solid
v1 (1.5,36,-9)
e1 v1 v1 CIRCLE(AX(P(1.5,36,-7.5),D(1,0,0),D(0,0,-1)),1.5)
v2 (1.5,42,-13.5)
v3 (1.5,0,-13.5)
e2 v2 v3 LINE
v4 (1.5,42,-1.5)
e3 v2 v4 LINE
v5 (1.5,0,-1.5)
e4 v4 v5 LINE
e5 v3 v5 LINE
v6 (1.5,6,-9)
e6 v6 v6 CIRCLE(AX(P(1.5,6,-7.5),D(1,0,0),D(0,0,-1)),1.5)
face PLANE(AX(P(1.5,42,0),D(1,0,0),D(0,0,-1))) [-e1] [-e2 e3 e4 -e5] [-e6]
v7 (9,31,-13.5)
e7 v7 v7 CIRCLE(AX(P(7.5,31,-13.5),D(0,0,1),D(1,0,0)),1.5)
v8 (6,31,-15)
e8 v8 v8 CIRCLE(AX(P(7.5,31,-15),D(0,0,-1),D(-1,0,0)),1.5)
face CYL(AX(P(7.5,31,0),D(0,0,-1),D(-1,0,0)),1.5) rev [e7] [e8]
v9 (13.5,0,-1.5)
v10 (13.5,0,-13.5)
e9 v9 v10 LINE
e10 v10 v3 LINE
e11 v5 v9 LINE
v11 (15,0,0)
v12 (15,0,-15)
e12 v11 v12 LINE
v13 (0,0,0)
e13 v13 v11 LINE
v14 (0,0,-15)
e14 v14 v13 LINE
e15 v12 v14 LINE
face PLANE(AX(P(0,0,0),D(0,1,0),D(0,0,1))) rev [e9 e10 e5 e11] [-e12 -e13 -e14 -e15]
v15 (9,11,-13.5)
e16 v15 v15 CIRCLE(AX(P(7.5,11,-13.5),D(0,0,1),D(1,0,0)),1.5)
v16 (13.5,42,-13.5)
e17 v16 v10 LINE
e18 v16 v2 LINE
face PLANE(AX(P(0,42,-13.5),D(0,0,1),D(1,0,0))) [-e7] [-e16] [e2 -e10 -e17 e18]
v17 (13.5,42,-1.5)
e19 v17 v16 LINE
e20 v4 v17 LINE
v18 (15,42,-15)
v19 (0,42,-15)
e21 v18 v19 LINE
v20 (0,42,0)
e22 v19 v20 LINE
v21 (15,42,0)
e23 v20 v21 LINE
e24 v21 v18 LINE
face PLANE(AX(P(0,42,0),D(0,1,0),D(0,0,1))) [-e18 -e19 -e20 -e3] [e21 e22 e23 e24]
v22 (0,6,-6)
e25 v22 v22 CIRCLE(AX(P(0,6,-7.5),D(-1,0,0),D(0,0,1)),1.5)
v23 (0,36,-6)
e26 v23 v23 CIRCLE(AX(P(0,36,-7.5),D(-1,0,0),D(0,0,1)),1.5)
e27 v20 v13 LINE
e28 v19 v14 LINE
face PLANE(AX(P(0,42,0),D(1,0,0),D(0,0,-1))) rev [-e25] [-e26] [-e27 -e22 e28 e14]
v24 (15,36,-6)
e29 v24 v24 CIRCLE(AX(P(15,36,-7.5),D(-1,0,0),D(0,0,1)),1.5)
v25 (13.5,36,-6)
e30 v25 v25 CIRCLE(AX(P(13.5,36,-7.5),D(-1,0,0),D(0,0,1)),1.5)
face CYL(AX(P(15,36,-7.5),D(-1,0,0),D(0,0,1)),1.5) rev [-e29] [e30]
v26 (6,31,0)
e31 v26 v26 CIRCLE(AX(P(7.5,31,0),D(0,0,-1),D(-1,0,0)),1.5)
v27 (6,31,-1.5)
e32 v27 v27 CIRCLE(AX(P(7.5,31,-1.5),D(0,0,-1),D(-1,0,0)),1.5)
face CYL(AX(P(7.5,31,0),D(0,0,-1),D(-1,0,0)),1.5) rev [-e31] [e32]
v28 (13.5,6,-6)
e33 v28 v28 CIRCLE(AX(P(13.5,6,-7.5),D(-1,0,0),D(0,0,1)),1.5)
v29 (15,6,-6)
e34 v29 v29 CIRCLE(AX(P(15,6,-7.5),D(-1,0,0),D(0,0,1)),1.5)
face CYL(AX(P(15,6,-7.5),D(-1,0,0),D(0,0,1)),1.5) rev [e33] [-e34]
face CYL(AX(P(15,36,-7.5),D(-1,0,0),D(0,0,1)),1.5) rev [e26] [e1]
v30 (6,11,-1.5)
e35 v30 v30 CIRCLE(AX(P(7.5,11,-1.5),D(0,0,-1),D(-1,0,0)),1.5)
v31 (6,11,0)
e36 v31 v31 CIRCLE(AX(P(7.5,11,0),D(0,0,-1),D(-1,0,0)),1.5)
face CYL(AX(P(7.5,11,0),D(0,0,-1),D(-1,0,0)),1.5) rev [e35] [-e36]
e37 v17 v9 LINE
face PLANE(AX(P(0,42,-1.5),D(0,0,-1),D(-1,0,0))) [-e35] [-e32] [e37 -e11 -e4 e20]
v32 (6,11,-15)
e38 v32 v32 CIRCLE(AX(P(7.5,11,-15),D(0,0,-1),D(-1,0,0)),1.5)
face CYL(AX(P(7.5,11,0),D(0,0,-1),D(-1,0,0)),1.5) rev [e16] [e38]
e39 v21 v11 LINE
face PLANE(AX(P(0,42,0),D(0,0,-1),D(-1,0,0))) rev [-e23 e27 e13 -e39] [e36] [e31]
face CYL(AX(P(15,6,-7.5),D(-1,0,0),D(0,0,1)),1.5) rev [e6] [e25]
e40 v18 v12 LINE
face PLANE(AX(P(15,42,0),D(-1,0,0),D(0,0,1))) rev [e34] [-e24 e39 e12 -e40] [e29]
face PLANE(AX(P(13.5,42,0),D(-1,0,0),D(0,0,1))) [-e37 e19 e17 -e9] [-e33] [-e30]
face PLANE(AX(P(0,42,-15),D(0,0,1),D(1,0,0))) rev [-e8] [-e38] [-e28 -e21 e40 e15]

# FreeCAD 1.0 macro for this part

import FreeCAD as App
import Part
import Sketcher
from FreeCAD import Vector
Q = App.Units.Quantity

doc = App.newDocument("Part")
body = doc.addObject("PartDesign::Body", "Body")

sketch1 = body.newObject("Sketcher::SketchObject", "Sketch")
sketch1.AttachmentSupport = (doc.getObject("XZ_Plane"), [""])
sketch1.MapMode = "FlatFace"
sketch1.addGeometry(Part.LineSegment(Vector(0, -15, 0), Vector(0, 0, 0)), False)
sketch1.addGeometry(Part.LineSegment(Vector(0, 0, 0), Vector(15, 0, 0)), False)
sketch1.addGeometry(Part.LineSegment(Vector(15, 0, 0), Vector(15, -15, 0)), False)
sketch1.addGeometry(Part.LineSegment(Vector(15, -15, 0), Vector(0, -15, 0)), False)
sketch1.addGeometry(Part.LineSegment(Vector(14, -2, 0), Vector(2, -2, 0)), False)
sketch1.addGeometry(Part.LineSegment(Vector(2, -2, 0), Vector(2, -14, 0)), False)
sketch1.addGeometry(Part.LineSegment(Vector(2, -14, 0), Vector(14, -14, 0)), False)
sketch1.addGeometry(Part.LineSegment(Vector(14, -14, 0), Vector(14, -2, 0)), False)
sketch1.addConstraint(Sketcher.Constraint("Coincident", 0, 2, 1, 1))
sketch1.addConstraint(Sketcher.Constraint("Coincident", 1, 2, 2, 1))
sketch1.addConstraint(Sketcher.Constraint("Coincident", 2, 2, 3, 1))
sketch1.addConstraint(Sketcher.Constraint("Coincident", 3, 2, 0, 1))
sketch1.addConstraint(Sketcher.Constraint("Coincident", 4, 2, 5, 1))
sketch1.addConstraint(Sketcher.Constraint("Coincident", 5, 2, 6, 1))
sketch1.addConstraint(Sketcher.Constraint("Coincident", 6, 2, 7, 1))
sketch1.addConstraint(Sketcher.Constraint("Coincident", 7, 2, 4, 1))
sketch1.addConstraint(Sketcher.Constraint("Vertical", 0))
sketch1.addConstraint(Sketcher.Constraint("Horizontal", 1))
sketch1.addConstraint(Sketcher.Constraint("Vertical", 2))
sketch1.addConstraint(Sketcher.Constraint("Horizontal", 3))
sketch1.addConstraint(Sketcher.Constraint("Horizontal", 4))
sketch1.addConstraint(Sketcher.Constraint("Vertical", 5))
sketch1.addConstraint(Sketcher.Constraint("Horizontal", 6))
sketch1.addConstraint(Sketcher.Constraint("Vertical", 7))
sketch1.addConstraint(Sketcher.Constraint("Coincident", 0, 2, -1, 1))
sketch1.addConstraint(Sketcher.Constraint("Equal", 3, 0))
sketch1.addConstraint(Sketcher.Constraint("Equal", 6, 5))
sketch1.addConstraint(Sketcher.Constraint("DistanceX", 1, 1, 1, 2, Q("15 mm")))
sketch1.addConstraint(Sketcher.Constraint("DistanceX", 4, 2, 4, 1, Q("12 mm")))
sketch1.addConstraint(Sketcher.Constraint("DistanceX", -1, 1, 4, 2, Q("1.5 mm")))
sketch1.addConstraint(Sketcher.Constraint("DistanceY", 4, 2, -1, 1, Q("1.5 mm")))
pad1 = body.newObject("PartDesign::Pad", "Pad")
pad1.Profile = sketch1
pad1.Length = 42
pad1.Reversed = True

sketch2 = body.newObject("Sketcher::SketchObject", "Sketch001")
sketch2.AttachmentSupport = (doc.getObject("YZ_Plane"), [""])
sketch2.MapMode = "FlatFace"
sketch2.addGeometry(Part.Circle(Vector(36, -7.5, 0), Vector(0, 0, 1), 1.5), False)
sketch2.addGeometry(Part.Circle(Vector(6, -7.5, 0), Vector(0, 0, 1), 1.5), False)
sketch2.addConstraint(Sketcher.Constraint("Equal", 0, 1))
sketch2.addConstraint(Sketcher.Constraint("Horizontal", 0, 3, 1, 3))
sketch2.addConstraint(Sketcher.Constraint("Diameter", 0, Q("3 mm")))
sketch2.addConstraint(Sketcher.Constraint("DistanceX", -1, 1, 0, 3, Q("36 mm")))
sketch2.addConstraint(Sketcher.Constraint("DistanceX", -1, 1, 1, 3, Q("6 mm")))
sketch2.addConstraint(Sketcher.Constraint("DistanceY", 0, 3, -1, 1, Q("7.5 mm")))
pocket1 = body.newObject("PartDesign::Pocket", "Pocket")
pocket1.Profile = sketch2
pocket1.Type = "ThroughAll"
pocket1.Reversed = True

sketch3 = body.newObject("Sketcher::SketchObject", "Sketch002")
sketch3.AttachmentSupport = (doc.getObject("XY_Plane"), [""])
sketch3.MapMode = "FlatFace"
sketch3.AttachmentOffset = App.Placement(Vector(0, 0, -15), App.Rotation())
sketch3.addGeometry(Part.Circle(Vector(7.5, 31, 0), Vector(0, 0, 1), 1.5), False)
sketch3.addGeometry(Part.Circle(Vector(7.5, 11, 0), Vector(0, 0, 1), 1.5), False)
sketch3.addConstraint(Sketcher.Constraint("Equal", 0, 1))
sketch3.addConstraint(Sketcher.Constraint("Vertical", 0, 3, 1, 3))
sketch3.addConstraint(Sketcher.Constraint("Diameter", 0, Q("3 mm")))
sketch3.addConstraint(Sketcher.Constraint("DistanceY", -1, 1, 0, 3, Q("31 mm")))
sketch3.addConstraint(Sketcher.Constraint("DistanceY", -1, 1, 1, 3, Q("11 mm")))
sketch3.addConstraint(Sketcher.Constraint("DistanceX", -1, 1, 0, 3, Q("7.5 mm")))
pocket2 = body.newObject("PartDesign::Pocket", "Pocket001")
pocket2.Profile = sketch3
pocket2.Type = "ThroughAll"
pocket2.Reversed = True

doc.recompute()
